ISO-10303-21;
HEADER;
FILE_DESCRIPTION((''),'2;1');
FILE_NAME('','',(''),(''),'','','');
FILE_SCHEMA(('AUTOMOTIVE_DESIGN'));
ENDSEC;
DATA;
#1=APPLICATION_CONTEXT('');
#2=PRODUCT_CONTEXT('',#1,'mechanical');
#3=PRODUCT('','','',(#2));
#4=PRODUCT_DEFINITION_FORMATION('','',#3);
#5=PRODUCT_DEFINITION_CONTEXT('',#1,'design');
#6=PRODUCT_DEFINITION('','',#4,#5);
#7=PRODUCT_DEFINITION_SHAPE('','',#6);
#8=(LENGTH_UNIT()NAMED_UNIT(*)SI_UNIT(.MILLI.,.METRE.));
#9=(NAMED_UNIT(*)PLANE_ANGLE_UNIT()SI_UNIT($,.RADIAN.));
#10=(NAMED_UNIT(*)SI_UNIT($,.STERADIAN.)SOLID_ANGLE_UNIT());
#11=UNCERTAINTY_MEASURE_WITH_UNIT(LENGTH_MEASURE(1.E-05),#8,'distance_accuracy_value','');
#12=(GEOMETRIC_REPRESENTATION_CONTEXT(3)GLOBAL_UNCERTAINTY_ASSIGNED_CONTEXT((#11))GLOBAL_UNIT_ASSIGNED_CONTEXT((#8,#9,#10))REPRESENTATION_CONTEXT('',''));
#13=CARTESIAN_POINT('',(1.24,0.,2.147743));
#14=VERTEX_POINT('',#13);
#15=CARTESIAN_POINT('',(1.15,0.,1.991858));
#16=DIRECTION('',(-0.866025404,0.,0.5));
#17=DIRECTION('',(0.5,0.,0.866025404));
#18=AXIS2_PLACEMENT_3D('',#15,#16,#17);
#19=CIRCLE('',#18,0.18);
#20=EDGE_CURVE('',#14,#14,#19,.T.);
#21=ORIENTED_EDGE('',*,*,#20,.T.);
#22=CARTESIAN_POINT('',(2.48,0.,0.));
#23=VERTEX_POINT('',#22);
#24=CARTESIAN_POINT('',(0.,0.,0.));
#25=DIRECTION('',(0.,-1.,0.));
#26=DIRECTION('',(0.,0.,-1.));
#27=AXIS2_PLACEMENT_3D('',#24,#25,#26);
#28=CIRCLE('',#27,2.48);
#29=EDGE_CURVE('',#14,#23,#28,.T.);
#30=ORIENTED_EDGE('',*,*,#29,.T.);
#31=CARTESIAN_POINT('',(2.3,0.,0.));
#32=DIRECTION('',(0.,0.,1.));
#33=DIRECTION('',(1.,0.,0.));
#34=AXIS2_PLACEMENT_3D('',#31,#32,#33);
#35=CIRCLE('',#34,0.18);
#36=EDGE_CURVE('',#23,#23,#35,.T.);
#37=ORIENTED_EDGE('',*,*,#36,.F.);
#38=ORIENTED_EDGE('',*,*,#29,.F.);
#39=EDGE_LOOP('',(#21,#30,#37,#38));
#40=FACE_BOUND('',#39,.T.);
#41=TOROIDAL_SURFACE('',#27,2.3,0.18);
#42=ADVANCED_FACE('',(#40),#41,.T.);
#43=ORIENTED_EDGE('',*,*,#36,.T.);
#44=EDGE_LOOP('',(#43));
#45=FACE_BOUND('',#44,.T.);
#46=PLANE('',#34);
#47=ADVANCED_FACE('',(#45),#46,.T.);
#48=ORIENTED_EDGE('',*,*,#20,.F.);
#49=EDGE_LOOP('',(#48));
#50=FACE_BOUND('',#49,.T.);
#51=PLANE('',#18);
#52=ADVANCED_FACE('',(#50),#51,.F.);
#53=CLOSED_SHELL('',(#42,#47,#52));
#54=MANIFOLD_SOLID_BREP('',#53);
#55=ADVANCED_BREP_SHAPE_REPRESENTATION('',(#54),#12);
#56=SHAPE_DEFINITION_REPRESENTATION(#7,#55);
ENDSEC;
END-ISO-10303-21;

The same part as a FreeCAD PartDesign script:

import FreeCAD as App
import Part
import Sketcher
from FreeCAD import Vector

doc = App.newDocument("Part")
body = doc.addObject("PartDesign::Body", "Body")

sketch1 = body.newObject("Sketcher::SketchObject", "Sketch")
sketch1.AttachmentSupport = (doc.getObject("XY_Plane"), [""])
sketch1.MapMode = "FlatFace"
sketch1.addGeometry(Part.Circle(Vector(2.3, 0, 0), Vector(0, 0, 1), 0.18), False)
sketch1.addConstraint([
    Sketcher.Constraint("PointOnObject", 0, 3, -1),
    Sketcher.Constraint("Diameter", 0, 0.36),
    Sketcher.Constraint("DistanceX", -1, 1, 0, 3, 2.3),
])
revolution = body.newObject("PartDesign::Revolution", "Revolution")
revolution.Profile = sketch1
revolution.ReferenceAxis = (sketch1, ["V_Axis"])
revolution.Angle = 300

doc.recompute()
